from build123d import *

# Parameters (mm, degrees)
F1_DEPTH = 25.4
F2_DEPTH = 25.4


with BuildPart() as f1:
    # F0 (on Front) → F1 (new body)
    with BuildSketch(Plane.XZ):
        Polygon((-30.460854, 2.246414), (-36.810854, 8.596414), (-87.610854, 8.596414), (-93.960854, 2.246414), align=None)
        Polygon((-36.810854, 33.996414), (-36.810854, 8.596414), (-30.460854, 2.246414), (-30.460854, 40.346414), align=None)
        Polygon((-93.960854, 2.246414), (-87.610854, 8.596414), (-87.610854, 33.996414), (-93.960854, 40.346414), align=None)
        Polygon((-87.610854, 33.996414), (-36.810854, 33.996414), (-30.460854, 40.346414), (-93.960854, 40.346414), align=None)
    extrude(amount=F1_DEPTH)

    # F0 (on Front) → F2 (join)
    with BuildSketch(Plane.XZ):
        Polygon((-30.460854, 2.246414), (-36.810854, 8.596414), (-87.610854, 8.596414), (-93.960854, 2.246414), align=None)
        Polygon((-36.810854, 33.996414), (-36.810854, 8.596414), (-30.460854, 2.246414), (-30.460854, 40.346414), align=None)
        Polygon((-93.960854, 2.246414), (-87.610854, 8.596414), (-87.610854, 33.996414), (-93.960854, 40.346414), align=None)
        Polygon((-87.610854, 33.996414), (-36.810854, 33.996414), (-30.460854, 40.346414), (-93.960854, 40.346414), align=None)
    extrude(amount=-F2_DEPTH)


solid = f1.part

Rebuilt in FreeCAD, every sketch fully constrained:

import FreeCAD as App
import Part
import Sketcher

V = App.Vector
Q = App.Units.Quantity


def add_polygon(sketch, points):
    """Adds a closed chain of lines whose ends are joined by coincident constraints."""
    first, n = sketch.GeometryCount, len(points)
    for a, b in zip(points, points[1:] + points[:1]):
        sketch.addGeometry(Part.LineSegment(App.Vector(*a, 0), App.Vector(*b, 0)), False)
    for i in range(n):
        sketch.addConstraint(Sketcher.Constraint("Coincident", first + i, 2, first + (i + 1) % n, 1))

doc = App.newDocument("Part")
body = doc.addObject("PartDesign::Body", "Body")

sketch1 = doc.addObject("Sketcher::SketchObject", "Sketch")
body.addObject(sketch1)
sketch1.AttachmentSupport = (doc.XZ_Plane, [""])
sketch1.MapMode = "FlatFace"
add_polygon(sketch1, [(-94, 40), (-94, 2), (-30, 2), (-30, 40)])
add_polygon(sketch1, [(-37, 9), (-88, 9), (-88, 34), (-37, 34)])
sketch1.addConstraint([
    Sketcher.Constraint("Vertical", 0),
    Sketcher.Constraint("Horizontal", 1),
    Sketcher.Constraint("Vertical", 2),
    Sketcher.Constraint("Horizontal", 3),
    Sketcher.Constraint("Horizontal", 4),
    Sketcher.Constraint("Vertical", 5),
    Sketcher.Constraint("Horizontal", 6),
    Sketcher.Constraint("Vertical", 7),
    Sketcher.Constraint("DistanceX", 4, 2, 4, 1, Q("2 in")),
    Sketcher.Constraint("DistanceY", 5, 1, 5, 2, Q("1 in")),
    Sketcher.Constraint("DistanceX", 1, 1, 1, 2, Q("2.5 in")),
    Sketcher.Constraint("DistanceY", 0, 2, 0, 1, Q("1.5 in")),
    Sketcher.Constraint("DistanceX", 0, 2, 4, 2, Q("0.25 in")),
    Sketcher.Constraint("DistanceY", 0, 2, 4, 2, Q("0.25 in")),
    Sketcher.Constraint("DistanceX", 0, 2, -1, 1, 93.960854),
    Sketcher.Constraint("DistanceY", -1, 1, 0, 2, 2.246414),
])
pad1 = doc.addObject("PartDesign::Pad", "Pad")
body.addObject(pad1)
pad1.Profile = sketch1
pad1.Length = Q("1 in")

sketch2 = doc.addObject("Sketcher::SketchObject", "Sketch001")
body.addObject(sketch2)
sketch2.AttachmentSupport = (doc.XZ_Plane, [""])
sketch2.MapMode = "FlatFace"
add_polygon(sketch2, [(-94, 40), (-94, 2), (-30, 2), (-30, 40)])
add_polygon(sketch2, [(-37, 9), (-88, 9), (-88, 34), (-37, 34)])
sketch2.addConstraint([
    Sketcher.Constraint("Vertical", 0),
    Sketcher.Constraint("Horizontal", 1),
    Sketcher.Constraint("Vertical", 2),
    Sketcher.Constraint("Horizontal", 3),
    Sketcher.Constraint("Horizontal", 4),
    Sketcher.Constraint("Vertical", 5),
    Sketcher.Constraint("Horizontal", 6),
    Sketcher.Constraint("Vertical", 7),
    Sketcher.Constraint("DistanceX", 4, 2, 4, 1, Q("2 in")),
    Sketcher.Constraint("DistanceY", 5, 1, 5, 2, Q("1 in")),
    Sketcher.Constraint("DistanceX", 1, 1, 1, 2, Q("2.5 in")),
    Sketcher.Constraint("DistanceY", 0, 2, 0, 1, Q("1.5 in")),
    Sketcher.Constraint("DistanceX", 0, 2, 4, 2, Q("0.25 in")),
    Sketcher.Constraint("DistanceY", 0, 2, 4, 2, Q("0.25 in")),
    Sketcher.Constraint("DistanceX", 0, 2, -1, 1, 93.960854),
    Sketcher.Constraint("DistanceY", -1, 1, 0, 2, 2.246414),
])
pad2 = doc.addObject("PartDesign::Pad", "Pad001")
body.addObject(pad2)
pad2.Profile = sketch2
pad2.Length = Q("1 in")
pad2.Reversed = True

doc.recompute()
